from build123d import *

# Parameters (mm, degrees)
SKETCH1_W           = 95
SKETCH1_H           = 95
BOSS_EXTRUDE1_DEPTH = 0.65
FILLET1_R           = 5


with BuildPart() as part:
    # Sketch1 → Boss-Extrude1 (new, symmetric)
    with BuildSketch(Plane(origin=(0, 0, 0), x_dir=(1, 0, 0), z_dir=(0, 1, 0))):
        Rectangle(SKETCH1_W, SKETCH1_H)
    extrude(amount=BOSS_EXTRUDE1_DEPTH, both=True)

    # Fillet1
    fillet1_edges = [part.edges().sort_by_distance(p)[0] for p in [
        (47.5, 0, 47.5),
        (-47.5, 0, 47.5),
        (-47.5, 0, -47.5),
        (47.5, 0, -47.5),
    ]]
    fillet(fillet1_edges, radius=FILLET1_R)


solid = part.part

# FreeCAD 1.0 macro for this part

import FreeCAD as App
import Part
import Sketcher
from FreeCAD import Vector


def edges_at(feature, points):
    """Names of the edges that pass closest to the given points."""
    edges = feature.Shape.Edges
    near = lambda p: min(range(len(edges)), key=lambda i: edges[i].distToShape(Part.Vertex(*p))[0])
    return sorted({f"Edge{near(p) + 1}" for p in points})

doc = App.newDocument("Part")
body = doc.addObject("PartDesign::Body", "Body")

# Sketch on XZ plane
sketch1 = body.newObject("Sketcher::SketchObject", "Sketch")
sketch1.AttachmentSupport = (doc.getObject("XZ_Plane"), [""])
sketch1.MapMode = "FlatFace"
sketch1.addGeometry(Part.LineSegment(Vector(-47.5, -47.5, 0), Vector(-47.5, 47.5, 0)), False)
sketch1.addGeometry(Part.LineSegment(Vector(-47.5, 47.5, 0), Vector(47.5, 47.5, 0)), False)
sketch1.addGeometry(Part.LineSegment(Vector(47.5, 47.5, 0), Vector(47.5, -47.5, 0)), False)
sketch1.addGeometry(Part.LineSegment(Vector(47.5, -47.5, 0), Vector(-47.5, -47.5, 0)), False)
sketch1.addConstraint(Sketcher.Constraint("Coincident", 0, 2, 1, 1))
sketch1.addConstraint(Sketcher.Constraint("Coincident", 1, 2, 2, 1))
sketch1.addConstraint(Sketcher.Constraint("Coincident", 2, 2, 3, 1))
sketch1.addConstraint(Sketcher.Constraint("Coincident", 3, 2, 0, 1))
sketch1.addConstraint(Sketcher.Constraint("Vertical", 0))
sketch1.addConstraint(Sketcher.Constraint("Horizontal", 1))
sketch1.addConstraint(Sketcher.Constraint("Vertical", 2))
sketch1.addConstraint(Sketcher.Constraint("Horizontal", 3))
sketch1.addConstraint(Sketcher.Constraint("Symmetric", 0, 2, 2, 2, -1, 1))
sketch1.addConstraint(Sketcher.Constraint("Equal", 3, 0))
sketch1.addConstraint(Sketcher.Constraint("DistanceX", 1, 1, 1, 2, 95.0))
pad1 = body.newObject("PartDesign::Pad", "Pad")
pad1.Profile = sketch1
pad1.Length = 1.3
pad1.Midplane = True
doc.recompute()

fillet = body.newObject("PartDesign::Fillet", "Fillet")
fillet.Base = (pad1, edges_at(pad1, [
    (47.5, 0, 47.5),
    (-47.5, 0, 47.5),
    (-47.5, 0, -47.5),
    (47.5, 0, -47.5),
]))
fillet.Radius = 5

doc.recompute()
